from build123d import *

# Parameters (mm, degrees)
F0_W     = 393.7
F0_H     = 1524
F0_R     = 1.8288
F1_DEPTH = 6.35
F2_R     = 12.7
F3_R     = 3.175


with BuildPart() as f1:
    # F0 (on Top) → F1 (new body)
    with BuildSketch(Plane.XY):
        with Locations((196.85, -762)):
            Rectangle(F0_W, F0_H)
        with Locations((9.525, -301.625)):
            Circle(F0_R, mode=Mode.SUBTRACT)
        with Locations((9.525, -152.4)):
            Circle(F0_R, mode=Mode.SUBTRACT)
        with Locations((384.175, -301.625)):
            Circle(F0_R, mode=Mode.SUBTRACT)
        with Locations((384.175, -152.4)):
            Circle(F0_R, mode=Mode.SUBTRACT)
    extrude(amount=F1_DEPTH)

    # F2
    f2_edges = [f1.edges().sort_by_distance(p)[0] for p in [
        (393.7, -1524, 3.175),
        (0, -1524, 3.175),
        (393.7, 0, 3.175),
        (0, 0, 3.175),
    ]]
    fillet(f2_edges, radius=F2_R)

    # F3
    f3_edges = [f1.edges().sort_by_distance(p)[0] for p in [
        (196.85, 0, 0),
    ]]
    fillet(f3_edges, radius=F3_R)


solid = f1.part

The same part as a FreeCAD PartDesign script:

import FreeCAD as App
import Part
import Sketcher

V = App.Vector
Q = App.Units.Quantity


def edges_at(feature, points):
    """Names of the edges that pass closest to the given points."""
    edges = feature.Shape.Edges
    near = lambda p: min(range(len(edges)), key=lambda i: edges[i].distToShape(Part.Vertex(*p))[0])
    return sorted({f"Edge{near(p) + 1}" for p in points})

doc = App.newDocument("Part")
body = doc.addObject("PartDesign::Body", "Body")

# Sketch on XY plane
sketch1 = body.newObject("Sketcher::SketchObject", "Sketch")
sketch1.AttachmentSupport = (doc.getObject("XY_Plane"), [""])
sketch1.MapMode = "FlatFace"
sketch1.addGeometry(Part.LineSegment(V(0, 0, 0), V(0, -1524, 0)), False)
sketch1.addGeometry(Part.LineSegment(V(0, -1524, 0), V(393.7, -1524, 0)), False)
sketch1.addGeometry(Part.LineSegment(V(393.7, -1524, 0), V(393.7, 0, 0)), False)
sketch1.addGeometry(Part.LineSegment(V(393.7, 0, 0), V(0, 0, 0)), False)
sketch1.addGeometry(Part.Circle(V(9.525, -301.625, 0), V(0, 0, 1), 1.8288), False)
sketch1.addGeometry(Part.Circle(V(384.175, -301.625, 0), V(0, 0, 1), 1.8288), False)
sketch1.addGeometry(Part.Circle(V(9.525, -152.4, 0), V(0, 0, 1), 1.8288), False)
sketch1.addGeometry(Part.Circle(V(384.175, -152.4, 0), V(0, 0, 1), 1.8288), False)
sketch1.addConstraint(Sketcher.Constraint("Coincident", 0, 2, 1, 1))
sketch1.addConstraint(Sketcher.Constraint("Coincident", 1, 2, 2, 1))
sketch1.addConstraint(Sketcher.Constraint("Coincident", 2, 2, 3, 1))
sketch1.addConstraint(Sketcher.Constraint("Coincident", 3, 2, 0, 1))
sketch1.addConstraint(Sketcher.Constraint("Vertical", 0))
sketch1.addConstraint(Sketcher.Constraint("Horizontal", 1))
sketch1.addConstraint(Sketcher.Constraint("Vertical", 2))
sketch1.addConstraint(Sketcher.Constraint("Horizontal", 3))
sketch1.addConstraint(Sketcher.Constraint("Coincident", 3, 2, -1, 1))
sketch1.addConstraint(Sketcher.Constraint("Equal", 4, 5))
sketch1.addConstraint(Sketcher.Constraint("Equal", 5, 6))
sketch1.addConstraint(Sketcher.Constraint("Equal", 6, 7))
sketch1.addConstraint(Sketcher.Constraint("Horizontal", 4, 3, 5, 3))
sketch1.addConstraint(Sketcher.Constraint("Horizontal", 6, 3, 7, 3))
sketch1.addConstraint(Sketcher.Constraint("Vertical", 4, 3, 6, 3))
sketch1.addConstraint(Sketcher.Constraint("Vertical", 5, 3, 7, 3))
sketch1.addConstraint(Sketcher.Constraint("DistanceY", 0, 2, 0, 1, Q("60 in")))
sketch1.addConstraint(Sketcher.Constraint("Diameter", 4, Q("0.144 in")))
sketch1.addConstraint(Sketcher.Constraint("DistanceX", 1, 1, 1, 2, Q("15.5 in")))
sketch1.addConstraint(Sketcher.Constraint("DistanceY", 6, 3, -1, 1, Q("6 in")))
sketch1.addConstraint(Sketcher.Constraint("DistanceX", 4, 3, 5, 3, Q("14.75 in")))
sketch1.addConstraint(Sketcher.Constraint("DistanceX", -1, 1, 4, 3, Q("0.375 in")))
sketch1.addConstraint(Sketcher.Constraint("DistanceY", 4, 3, -1, 1, Q("11.875 in")))
pad1 = body.newObject("PartDesign::Pad", "Pad")
pad1.Profile = sketch1
pad1.Length = Q("0.25 in")
doc.recompute()

fillet = body.newObject("PartDesign::Fillet", "Fillet")
fillet.Base = (pad1, edges_at(pad1, [
    (393.7, -1524, 3.175),
    (0, -1524, 3.175),
    (393.7, 0, 3.175),
    (0, 0, 3.175),
]))
fillet.Radius = Q("0.5 in")
doc.recompute()

fillet2 = body.newObject("PartDesign::Fillet", "Fillet001")
fillet2.Base = (fillet, edges_at(fillet, [(196.85, 0, 0)]))
fillet2.Radius = Q("0.125 in")

doc.recompute()
